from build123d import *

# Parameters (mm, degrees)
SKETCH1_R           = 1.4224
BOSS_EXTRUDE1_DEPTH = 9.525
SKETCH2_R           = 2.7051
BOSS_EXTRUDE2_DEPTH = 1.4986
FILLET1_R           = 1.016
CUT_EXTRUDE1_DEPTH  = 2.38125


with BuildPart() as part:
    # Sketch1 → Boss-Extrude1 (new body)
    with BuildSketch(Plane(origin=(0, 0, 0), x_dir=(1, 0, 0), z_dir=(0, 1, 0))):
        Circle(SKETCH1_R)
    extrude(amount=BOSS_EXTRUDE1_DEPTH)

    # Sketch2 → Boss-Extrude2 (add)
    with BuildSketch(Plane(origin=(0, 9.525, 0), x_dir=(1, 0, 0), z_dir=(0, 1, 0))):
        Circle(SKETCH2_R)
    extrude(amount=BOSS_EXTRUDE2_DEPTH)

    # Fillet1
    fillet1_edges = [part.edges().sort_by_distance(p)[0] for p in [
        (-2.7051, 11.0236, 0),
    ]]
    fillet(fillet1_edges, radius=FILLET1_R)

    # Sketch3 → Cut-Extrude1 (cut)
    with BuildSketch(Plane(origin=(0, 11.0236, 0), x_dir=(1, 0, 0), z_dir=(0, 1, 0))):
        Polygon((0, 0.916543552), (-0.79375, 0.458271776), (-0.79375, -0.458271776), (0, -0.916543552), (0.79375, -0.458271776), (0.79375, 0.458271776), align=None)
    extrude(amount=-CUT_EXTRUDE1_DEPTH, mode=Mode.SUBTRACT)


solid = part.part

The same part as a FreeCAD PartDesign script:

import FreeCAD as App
import Part
import Sketcher

V = App.Vector
Q = App.Units.Quantity


def edges_at(feature, points):
    """Names of the edges that pass closest to the given points."""
    edges = feature.Shape.Edges
    near = lambda p: min(range(len(edges)), key=lambda i: edges[i].distToShape(Part.Vertex(*p))[0])
    return sorted({f"Edge{near(p) + 1}" for p in points})

doc = App.newDocument("Part")
params = doc.addObject("Spreadsheet::Sheet", "Params")
for row, (alias, value) in enumerate([
    ("sketch1_diameter", "0.112 in"),
    ("pad1_length", "0.375 in"),
    ("sketch2_diameter", "0.213 in"),
    ("pad2_length", "0.059 in"),
    ("fillet_radius", "0.04 in"),
    ("pocket1_length", "0.09375 in"),
], start=1):
    params.set(f"A{row}", alias)
    params.set(f"B{row}", "=" + value)
    params.setAlias(f"B{row}", alias)

body = doc.addObject("PartDesign::Body", "Body")

# Sketch on XZ plane
sketch1 = doc.addObject("Sketcher::SketchObject", "Sketch")
body.addObject(sketch1)
sketch1.AttachmentSupport = (doc.XZ_Plane, [""])
sketch1.MapMode = "FlatFace"
sketch1.addGeometry(Part.Circle(V(0, 0, 0), V(0, 0, 1), 1.4), False)
sketch1.addConstraint(Sketcher.Constraint("Coincident", 0, 3, -1, 1))
sketch1.addConstraint(Sketcher.Constraint("Diameter", 0, Q("0.112 in")))
sketch1.setExpression("Constraints[1]", "Params.sketch1_diameter")
pad1 = doc.addObject("PartDesign::Pad", "Pad")
body.addObject(pad1)
pad1.Profile = sketch1
pad1.setExpression("Length", "Params.pad1_length")
pad1.Reversed = True

# Sketch on XZ plane
sketch2 = doc.addObject("Sketcher::SketchObject", "Sketch001")
body.addObject(sketch2)
sketch2.AttachmentSupport = (doc.XZ_Plane, [""])
sketch2.MapMode = "FlatFace"
sketch2.AttachmentOffset = App.Placement(V(0, 0, -0.375 * 25.4), App.Rotation())
sketch2.addGeometry(Part.Circle(V(0, 0, 0), V(0, 0, 1), 2.7), False)
sketch2.addConstraint(Sketcher.Constraint("Coincident", 0, 3, -1, 1))
sketch2.addConstraint(Sketcher.Constraint("Diameter", 0, Q("0.213 in")))
sketch2.setExpression("Constraints[1]", "Params.sketch2_diameter")
pad2 = doc.addObject("PartDesign::Pad", "Pad001")
body.addObject(pad2)
pad2.Profile = sketch2
pad2.setExpression("Length", "Params.pad2_length")
pad2.Reversed = True
doc.recompute()

fillet = doc.addObject("PartDesign::Fillet", "Fillet")
body.addObject(fillet)
fillet.Base = (pad2, edges_at(pad2, [(-2.705, 11.024, 0)]))
fillet.setExpression("Radius", "Params.fillet_radius")

# Sketch on XZ plane
sketch3 = doc.addObject("Sketcher::SketchObject", "Sketch002")
body.addObject(sketch3)
sketch3.AttachmentSupport = (doc.XZ_Plane, [""])
sketch3.MapMode = "FlatFace"
sketch3.AttachmentOffset = App.Placement(V(0, 0, -0.434 * 25.4), App.Rotation())
sketch3.addGeometry(Part.LineSegment(V(0, -0.9, 0), V(-0.8, -0.5, 0)), False)
sketch3.addGeometry(Part.LineSegment(V(-0.8, -0.5, 0), V(-0.8, 0.5, 0)), False)
sketch3.addGeometry(Part.LineSegment(V(-0.8, 0.5, 0), V(0, 0.9, 0)), False)
sketch3.addGeometry(Part.LineSegment(V(0, 0.9, 0), V(0.8, 0.5, 0)), False)
sketch3.addGeometry(Part.LineSegment(V(0.8, 0.5, 0), V(0.8, -0.5, 0)), False)
sketch3.addGeometry(Part.LineSegment(V(0.8, -0.5, 0), V(0, -0.9, 0)), False)
sketch3.addConstraint(Sketcher.Constraint("Coincident", 0, 2, 1, 1))
sketch3.addConstraint(Sketcher.Constraint("Coincident", 1, 2, 2, 1))
sketch3.addConstraint(Sketcher.Constraint("Coincident", 2, 2, 3, 1))
sketch3.addConstraint(Sketcher.Constraint("Coincident", 3, 2, 4, 1))
sketch3.addConstraint(Sketcher.Constraint("Coincident", 4, 2, 5, 1))
sketch3.addConstraint(Sketcher.Constraint("Coincident", 5, 2, 0, 1))
sketch3.addConstraint(Sketcher.Constraint("Vertical", 1))
sketch3.addConstraint(Sketcher.Constraint("Vertical", 4))
sketch3.addConstraint(Sketcher.Constraint("Symmetric", 0, 2, 3, 2, -1, 1))
sketch3.addConstraint(Sketcher.Constraint("Symmetric", 2, 2, 5, 2, -1, 1))
sketch3.addConstraint(Sketcher.Constraint("PointOnObject", 2, 2, -2))
sketch3.addConstraint(Sketcher.Constraint("Parallel", 2, 5))
sketch3.addConstraint(Sketcher.Constraint("Horizontal", 1, 2, 3, 2))
sketch3.addConstraint(Sketcher.Constraint("Angle", 0, Q("150 deg")))
sketch3.addConstraint(Sketcher.Constraint("DistanceX", 0, 2, -1, 1, Q("0.03125 in")))
sketch3.addConstraint(Sketcher.Constraint("DistanceY", 1, 1, 1, 2, 0.916544))
pocket1 = doc.addObject("PartDesign::Pocket", "Pocket")
body.addObject(pocket1)
pocket1.Profile = sketch3
pocket1.setExpression("Length", "Params.pocket1_length")
pocket1.Reversed = True

doc.recompute()
